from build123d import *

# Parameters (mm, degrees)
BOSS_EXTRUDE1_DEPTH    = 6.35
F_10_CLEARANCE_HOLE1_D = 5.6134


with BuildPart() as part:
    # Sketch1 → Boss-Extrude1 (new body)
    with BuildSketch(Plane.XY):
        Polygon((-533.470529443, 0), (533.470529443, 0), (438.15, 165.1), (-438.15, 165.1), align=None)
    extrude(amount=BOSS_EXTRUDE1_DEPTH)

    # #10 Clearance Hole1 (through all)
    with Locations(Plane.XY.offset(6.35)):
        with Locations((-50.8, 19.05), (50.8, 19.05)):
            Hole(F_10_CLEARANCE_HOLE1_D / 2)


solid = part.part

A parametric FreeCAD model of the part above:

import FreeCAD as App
import Part
import Sketcher
from FreeCAD import Vector
Q = App.Units.Quantity


def add_polygon(sketch, points):
    """Adds a closed chain of lines whose ends are joined by coincident constraints."""
    first, n = sketch.GeometryCount, len(points)
    for a, b in zip(points, points[1:] + points[:1]):
        sketch.addGeometry(Part.LineSegment(App.Vector(*a, 0), App.Vector(*b, 0)), False)
    for i in range(n):
        sketch.addConstraint(Sketcher.Constraint("Coincident", first + i, 2, first + (i + 1) % n, 1))

doc = App.newDocument("Part")
params = doc.addObject("Spreadsheet::Sheet", "Params")
for row, (alias, value) in enumerate([
    ("sketch1_width", "34.5 in"),
    ("pad1_length", "0.25 in"),
    ("sketch2_diameter", "0.221 in"),
    ("hole_diameter", "0.221 in"),
], start=1):
    params.set(f"A{row}", alias)
    params.set(f"B{row}", "=" + value)
    params.setAlias(f"B{row}", alias)

body = doc.addObject("PartDesign::Body", "Body")

# Sketch on XY plane
sketch1 = body.newObject("Sketcher::SketchObject", "Sketch")
sketch1.AttachmentSupport = (doc.getObject("XY_Plane"), [""])
sketch1.MapMode = "FlatFace"
add_polygon(sketch1, [(-533.470529, 0), (533.470529, 0), (438.15, 165.1), (-438.15, 165.1)])  # lines 0-3
sketch1.addConstraint(Sketcher.Constraint("Horizontal", 0))
sketch1.addConstraint(Sketcher.Constraint("Horizontal", 2))
sketch1.addConstraint(Sketcher.Constraint("Symmetric", 0, 2, 3, 2, -1, 1))
sketch1.addConstraint(Sketcher.Constraint("Equal", 1, 3))
sketch1.addConstraint(Sketcher.Constraint("DistanceX", 2, 2, 2, 1, Q("34.5 in")))
sketch1.addConstraint(Sketcher.Constraint("Angle", 1, Q("120 deg")))
sketch1.addConstraint(Sketcher.Constraint("DistanceY", -1, 1, 1, 2, Q("6.5 in")))
sketch1.setExpression("Constraints[8]", "Params.sketch1_width")
pad1 = body.newObject("PartDesign::Pad", "Pad")
pad1.Profile = sketch1
pad1.setExpression("Length", "Params.pad1_length")

# Sketch on XY plane
sketch2 = body.newObject("Sketcher::SketchObject", "Sketch001")
sketch2.AttachmentSupport = (doc.getObject("XY_Plane"), [""])
sketch2.MapMode = "FlatFace"
sketch2.AttachmentOffset = App.Placement(Vector(0, 0, 0.25 * 25.4), App.Rotation())
sketch2.addGeometry(Part.Circle(Vector(-50.8, 19.05, 0), Vector(0, 0, 1), 2.8067), False)
sketch2.addGeometry(Part.Circle(Vector(50.8, 19.05, 0), Vector(0, 0, 1), 2.8067), False)
sketch2.addConstraint(Sketcher.Constraint("Equal", 0, 1))
sketch2.addConstraint(Sketcher.Constraint("Symmetric", 0, 3, 1, 3, -2))
sketch2.addConstraint(Sketcher.Constraint("Diameter", 0, Q("0.221 in")))
sketch2.addConstraint(Sketcher.Constraint("DistanceX", 0, 3, -1, 1, Q("2 in")))
sketch2.addConstraint(Sketcher.Constraint("DistanceY", -1, 1, 0, 3, Q("0.75 in")))
sketch2.setExpression("Constraints[2]", "Params.sketch2_diameter")
doc.recompute()
hole = body.newObject("PartDesign::Hole", "Hole")
hole.Profile = sketch2
hole.ThreadType = "None"
hole.setExpression("Diameter", "Params.hole_diameter")
hole.DepthType = "ThroughAll"

doc.recompute()
